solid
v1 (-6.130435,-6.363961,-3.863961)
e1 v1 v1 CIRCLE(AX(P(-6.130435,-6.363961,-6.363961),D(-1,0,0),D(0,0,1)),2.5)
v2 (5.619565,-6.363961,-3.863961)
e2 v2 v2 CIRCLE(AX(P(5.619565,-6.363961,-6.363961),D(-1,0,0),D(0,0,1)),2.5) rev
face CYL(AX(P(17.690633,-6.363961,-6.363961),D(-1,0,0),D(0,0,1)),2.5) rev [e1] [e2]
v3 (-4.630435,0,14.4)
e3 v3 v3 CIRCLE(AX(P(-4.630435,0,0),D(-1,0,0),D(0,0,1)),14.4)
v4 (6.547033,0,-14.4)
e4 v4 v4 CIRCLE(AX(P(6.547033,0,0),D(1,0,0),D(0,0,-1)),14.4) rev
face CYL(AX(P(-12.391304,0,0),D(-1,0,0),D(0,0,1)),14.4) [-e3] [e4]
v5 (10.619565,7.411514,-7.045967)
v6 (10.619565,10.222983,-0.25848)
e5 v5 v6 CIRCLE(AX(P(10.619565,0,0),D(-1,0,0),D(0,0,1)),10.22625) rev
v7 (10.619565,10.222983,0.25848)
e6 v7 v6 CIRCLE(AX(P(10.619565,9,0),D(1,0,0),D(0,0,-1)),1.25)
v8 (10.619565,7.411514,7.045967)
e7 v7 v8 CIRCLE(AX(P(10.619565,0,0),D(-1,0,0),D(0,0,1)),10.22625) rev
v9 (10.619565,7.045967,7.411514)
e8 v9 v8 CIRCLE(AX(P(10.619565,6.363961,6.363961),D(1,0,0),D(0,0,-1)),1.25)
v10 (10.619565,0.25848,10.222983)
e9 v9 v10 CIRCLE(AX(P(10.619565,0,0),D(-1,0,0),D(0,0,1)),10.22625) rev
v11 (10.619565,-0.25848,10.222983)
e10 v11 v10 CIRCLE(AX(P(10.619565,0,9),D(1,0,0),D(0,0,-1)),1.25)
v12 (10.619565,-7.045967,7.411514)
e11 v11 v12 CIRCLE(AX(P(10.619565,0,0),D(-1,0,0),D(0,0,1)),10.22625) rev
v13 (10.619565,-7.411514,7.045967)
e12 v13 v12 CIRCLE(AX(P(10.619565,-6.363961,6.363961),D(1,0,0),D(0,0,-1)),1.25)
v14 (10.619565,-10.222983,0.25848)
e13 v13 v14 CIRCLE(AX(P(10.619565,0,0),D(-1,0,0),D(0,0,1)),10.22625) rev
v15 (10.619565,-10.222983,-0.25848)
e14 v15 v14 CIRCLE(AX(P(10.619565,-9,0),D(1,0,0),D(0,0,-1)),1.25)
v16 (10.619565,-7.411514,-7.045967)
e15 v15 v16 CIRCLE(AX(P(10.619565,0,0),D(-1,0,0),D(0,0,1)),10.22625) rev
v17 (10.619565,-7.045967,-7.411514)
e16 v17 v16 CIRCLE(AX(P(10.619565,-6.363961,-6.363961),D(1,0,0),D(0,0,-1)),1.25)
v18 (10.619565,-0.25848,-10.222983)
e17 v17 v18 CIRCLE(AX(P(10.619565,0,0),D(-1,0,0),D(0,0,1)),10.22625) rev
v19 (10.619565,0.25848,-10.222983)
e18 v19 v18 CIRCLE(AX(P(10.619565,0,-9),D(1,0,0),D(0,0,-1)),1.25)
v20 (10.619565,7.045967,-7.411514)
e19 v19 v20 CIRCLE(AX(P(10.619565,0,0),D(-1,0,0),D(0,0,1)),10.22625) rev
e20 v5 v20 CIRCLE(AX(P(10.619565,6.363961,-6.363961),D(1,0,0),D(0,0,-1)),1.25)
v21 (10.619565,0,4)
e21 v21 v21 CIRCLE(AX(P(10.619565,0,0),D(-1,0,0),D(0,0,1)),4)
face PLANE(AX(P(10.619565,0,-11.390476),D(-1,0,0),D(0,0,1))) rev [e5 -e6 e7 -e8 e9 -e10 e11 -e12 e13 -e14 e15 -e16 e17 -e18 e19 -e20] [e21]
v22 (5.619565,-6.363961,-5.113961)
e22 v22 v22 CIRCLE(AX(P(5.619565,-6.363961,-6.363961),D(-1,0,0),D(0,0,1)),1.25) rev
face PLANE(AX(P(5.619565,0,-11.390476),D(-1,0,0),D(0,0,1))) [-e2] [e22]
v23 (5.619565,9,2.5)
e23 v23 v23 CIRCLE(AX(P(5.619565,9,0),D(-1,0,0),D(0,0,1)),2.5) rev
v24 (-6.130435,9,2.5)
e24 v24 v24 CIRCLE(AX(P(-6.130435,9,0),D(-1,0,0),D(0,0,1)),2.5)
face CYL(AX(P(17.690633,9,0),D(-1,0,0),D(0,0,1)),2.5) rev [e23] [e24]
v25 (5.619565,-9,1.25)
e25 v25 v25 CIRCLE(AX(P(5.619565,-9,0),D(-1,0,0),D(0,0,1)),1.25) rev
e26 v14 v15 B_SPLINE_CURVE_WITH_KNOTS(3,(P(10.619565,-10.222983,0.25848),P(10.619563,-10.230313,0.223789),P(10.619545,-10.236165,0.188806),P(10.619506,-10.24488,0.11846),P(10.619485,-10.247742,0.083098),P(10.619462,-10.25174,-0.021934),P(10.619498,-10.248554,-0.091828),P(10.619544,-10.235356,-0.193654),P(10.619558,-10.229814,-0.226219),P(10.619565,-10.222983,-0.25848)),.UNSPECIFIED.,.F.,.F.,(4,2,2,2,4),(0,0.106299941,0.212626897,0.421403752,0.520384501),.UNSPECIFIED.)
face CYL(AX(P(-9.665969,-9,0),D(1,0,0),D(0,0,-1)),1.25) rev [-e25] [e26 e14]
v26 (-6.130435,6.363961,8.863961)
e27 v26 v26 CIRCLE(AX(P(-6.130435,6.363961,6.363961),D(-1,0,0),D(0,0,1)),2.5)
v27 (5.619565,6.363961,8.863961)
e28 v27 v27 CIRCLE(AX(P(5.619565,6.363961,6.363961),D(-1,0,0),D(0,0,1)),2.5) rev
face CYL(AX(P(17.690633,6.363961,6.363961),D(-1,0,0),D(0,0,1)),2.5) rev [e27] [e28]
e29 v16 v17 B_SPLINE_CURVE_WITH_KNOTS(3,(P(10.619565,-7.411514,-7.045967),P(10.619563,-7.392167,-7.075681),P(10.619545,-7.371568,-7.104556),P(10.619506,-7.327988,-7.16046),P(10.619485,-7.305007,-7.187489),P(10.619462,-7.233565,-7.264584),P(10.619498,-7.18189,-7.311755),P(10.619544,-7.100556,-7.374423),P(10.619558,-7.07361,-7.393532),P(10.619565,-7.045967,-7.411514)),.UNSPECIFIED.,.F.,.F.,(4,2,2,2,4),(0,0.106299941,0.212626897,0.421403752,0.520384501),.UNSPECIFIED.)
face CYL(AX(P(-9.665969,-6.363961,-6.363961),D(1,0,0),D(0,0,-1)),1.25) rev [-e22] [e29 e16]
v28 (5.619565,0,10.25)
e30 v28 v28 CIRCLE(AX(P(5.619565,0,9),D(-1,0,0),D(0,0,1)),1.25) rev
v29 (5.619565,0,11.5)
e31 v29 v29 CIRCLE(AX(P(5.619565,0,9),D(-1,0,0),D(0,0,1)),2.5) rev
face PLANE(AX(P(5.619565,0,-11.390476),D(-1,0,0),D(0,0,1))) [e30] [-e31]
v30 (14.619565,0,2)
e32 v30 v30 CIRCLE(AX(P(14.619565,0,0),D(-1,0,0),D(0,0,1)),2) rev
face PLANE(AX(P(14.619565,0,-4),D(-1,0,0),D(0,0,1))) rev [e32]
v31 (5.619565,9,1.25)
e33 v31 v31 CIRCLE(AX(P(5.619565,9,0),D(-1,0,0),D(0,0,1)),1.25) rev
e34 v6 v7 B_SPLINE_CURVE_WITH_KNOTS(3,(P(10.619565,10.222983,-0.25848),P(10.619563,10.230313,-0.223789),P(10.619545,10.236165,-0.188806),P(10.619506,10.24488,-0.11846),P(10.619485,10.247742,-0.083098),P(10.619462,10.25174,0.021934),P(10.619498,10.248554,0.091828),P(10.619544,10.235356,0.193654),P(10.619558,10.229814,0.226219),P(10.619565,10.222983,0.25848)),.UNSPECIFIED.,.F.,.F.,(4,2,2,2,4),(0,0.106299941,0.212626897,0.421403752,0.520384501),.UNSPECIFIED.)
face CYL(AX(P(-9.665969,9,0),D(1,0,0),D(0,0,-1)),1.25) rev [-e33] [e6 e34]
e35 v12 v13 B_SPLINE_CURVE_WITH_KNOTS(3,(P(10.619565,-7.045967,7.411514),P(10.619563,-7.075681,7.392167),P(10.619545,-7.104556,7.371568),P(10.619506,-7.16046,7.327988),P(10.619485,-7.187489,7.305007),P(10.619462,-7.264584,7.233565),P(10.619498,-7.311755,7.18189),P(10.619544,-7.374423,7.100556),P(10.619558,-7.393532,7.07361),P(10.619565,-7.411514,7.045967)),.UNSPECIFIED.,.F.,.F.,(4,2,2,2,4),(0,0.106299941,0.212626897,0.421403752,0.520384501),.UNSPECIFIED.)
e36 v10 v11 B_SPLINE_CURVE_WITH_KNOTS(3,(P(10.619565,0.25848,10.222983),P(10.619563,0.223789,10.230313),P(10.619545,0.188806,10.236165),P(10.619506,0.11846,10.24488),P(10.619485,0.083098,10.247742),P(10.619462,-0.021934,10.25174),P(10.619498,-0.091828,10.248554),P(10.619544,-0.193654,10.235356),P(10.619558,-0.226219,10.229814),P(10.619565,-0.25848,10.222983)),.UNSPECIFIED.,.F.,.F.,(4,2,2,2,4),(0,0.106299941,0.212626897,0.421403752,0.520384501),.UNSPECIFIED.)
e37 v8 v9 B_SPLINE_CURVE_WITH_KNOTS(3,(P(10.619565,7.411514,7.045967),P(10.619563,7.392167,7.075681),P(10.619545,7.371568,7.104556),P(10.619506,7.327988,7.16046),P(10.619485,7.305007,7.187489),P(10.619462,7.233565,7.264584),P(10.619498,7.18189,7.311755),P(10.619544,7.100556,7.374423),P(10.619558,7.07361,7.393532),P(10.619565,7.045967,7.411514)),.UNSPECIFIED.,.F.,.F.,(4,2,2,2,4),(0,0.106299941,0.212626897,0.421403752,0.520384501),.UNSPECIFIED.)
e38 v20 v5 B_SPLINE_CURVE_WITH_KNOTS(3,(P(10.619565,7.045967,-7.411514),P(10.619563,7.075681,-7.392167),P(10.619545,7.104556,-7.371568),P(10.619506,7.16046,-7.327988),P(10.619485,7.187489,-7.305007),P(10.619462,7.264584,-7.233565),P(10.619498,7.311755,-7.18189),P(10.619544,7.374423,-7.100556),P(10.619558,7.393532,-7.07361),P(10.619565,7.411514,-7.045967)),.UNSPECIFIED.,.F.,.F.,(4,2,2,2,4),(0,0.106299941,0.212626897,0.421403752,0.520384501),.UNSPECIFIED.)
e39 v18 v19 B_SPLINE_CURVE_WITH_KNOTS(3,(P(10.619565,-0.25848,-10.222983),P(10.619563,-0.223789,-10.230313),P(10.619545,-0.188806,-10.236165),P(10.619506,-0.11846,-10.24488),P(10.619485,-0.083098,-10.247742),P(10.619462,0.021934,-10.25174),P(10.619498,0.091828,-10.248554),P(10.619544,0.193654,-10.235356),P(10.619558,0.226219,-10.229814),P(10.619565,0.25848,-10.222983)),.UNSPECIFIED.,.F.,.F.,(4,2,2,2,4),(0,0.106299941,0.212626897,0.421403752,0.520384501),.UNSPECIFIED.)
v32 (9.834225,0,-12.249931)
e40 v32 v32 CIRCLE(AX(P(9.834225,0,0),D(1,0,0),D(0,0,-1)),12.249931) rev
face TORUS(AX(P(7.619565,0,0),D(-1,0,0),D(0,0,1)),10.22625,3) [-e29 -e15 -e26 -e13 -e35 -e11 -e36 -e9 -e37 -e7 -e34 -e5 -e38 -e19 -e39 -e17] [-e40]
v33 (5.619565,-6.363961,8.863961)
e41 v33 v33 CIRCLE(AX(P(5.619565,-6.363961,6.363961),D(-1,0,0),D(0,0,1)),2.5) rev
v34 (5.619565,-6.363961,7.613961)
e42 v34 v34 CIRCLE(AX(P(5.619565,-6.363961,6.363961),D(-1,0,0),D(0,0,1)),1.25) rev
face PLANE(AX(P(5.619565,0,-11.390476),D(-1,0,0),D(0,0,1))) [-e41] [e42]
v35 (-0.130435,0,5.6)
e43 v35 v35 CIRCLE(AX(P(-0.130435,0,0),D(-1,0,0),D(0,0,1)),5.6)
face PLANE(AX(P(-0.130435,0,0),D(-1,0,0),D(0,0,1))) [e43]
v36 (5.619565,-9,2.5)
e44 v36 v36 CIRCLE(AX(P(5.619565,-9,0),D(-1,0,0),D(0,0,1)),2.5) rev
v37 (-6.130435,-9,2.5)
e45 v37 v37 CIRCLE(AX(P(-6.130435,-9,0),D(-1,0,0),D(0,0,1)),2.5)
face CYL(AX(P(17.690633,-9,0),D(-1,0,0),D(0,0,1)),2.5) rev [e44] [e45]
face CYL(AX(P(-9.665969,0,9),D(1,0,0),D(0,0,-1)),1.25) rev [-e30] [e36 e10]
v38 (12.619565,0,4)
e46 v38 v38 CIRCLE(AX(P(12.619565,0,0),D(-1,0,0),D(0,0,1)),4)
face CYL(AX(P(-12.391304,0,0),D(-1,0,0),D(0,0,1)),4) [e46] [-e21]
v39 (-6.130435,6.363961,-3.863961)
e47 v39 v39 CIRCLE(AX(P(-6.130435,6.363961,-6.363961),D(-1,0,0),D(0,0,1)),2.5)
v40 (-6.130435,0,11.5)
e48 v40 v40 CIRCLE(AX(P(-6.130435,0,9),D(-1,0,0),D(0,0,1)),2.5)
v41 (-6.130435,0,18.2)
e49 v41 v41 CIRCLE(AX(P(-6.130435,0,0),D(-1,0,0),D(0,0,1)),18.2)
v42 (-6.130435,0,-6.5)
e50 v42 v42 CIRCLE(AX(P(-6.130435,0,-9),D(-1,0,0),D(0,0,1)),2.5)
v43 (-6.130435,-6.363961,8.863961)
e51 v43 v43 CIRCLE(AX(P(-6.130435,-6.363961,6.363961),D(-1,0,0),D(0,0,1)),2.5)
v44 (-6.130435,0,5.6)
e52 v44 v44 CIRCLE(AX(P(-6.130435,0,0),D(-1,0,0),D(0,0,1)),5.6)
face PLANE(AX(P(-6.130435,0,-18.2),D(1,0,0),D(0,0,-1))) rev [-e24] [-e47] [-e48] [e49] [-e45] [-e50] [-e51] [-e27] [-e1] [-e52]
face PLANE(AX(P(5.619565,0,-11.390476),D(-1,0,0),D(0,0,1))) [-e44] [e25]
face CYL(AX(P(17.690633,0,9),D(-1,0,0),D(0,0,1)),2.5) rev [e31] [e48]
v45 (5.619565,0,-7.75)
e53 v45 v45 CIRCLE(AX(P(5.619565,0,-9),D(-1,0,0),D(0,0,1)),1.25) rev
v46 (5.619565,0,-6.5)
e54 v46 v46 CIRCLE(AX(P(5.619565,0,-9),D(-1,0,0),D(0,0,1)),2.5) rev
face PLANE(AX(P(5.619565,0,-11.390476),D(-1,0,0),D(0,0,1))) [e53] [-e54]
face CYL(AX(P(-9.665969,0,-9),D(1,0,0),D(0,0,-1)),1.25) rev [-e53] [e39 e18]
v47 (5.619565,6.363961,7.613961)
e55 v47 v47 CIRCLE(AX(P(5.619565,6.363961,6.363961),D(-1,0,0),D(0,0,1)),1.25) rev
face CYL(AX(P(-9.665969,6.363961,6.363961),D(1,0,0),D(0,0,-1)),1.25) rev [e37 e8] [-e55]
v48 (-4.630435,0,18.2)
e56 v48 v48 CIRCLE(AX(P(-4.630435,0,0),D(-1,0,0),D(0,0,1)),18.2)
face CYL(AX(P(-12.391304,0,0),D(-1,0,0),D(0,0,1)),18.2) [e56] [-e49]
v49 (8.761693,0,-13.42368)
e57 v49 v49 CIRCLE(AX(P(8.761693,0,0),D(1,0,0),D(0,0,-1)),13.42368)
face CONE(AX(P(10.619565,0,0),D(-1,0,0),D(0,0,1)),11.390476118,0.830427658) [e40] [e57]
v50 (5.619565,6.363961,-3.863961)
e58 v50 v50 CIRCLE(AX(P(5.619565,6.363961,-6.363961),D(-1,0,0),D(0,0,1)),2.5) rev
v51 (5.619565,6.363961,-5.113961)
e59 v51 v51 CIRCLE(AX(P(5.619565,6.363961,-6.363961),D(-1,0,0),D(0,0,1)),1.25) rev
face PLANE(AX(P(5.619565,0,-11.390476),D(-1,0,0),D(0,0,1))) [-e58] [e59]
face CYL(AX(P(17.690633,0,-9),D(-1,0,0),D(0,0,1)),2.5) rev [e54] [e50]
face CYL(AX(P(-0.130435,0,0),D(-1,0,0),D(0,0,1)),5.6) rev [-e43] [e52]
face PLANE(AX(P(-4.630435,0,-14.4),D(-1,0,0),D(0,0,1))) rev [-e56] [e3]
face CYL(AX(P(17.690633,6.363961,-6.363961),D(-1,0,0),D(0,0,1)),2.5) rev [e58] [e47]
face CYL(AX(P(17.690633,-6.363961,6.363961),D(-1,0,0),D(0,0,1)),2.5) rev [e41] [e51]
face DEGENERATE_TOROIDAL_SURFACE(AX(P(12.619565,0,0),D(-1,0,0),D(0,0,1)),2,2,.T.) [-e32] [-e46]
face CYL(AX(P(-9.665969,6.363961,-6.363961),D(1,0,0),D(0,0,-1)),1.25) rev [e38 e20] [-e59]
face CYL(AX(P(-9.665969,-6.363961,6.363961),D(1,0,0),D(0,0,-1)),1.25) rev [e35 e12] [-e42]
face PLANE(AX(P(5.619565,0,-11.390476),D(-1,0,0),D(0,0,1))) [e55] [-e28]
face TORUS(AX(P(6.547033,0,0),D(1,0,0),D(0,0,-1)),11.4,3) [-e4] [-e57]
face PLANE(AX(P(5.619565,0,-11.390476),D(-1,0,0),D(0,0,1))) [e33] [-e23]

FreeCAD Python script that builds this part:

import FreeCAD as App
import Part
import Sketcher

V = App.Vector
Q = App.Units.Quantity


def edges_at(feature, points):
    """Names of the edges that pass closest to the given points."""
    edges = feature.Shape.Edges
    near = lambda p: min(range(len(edges)), key=lambda i: edges[i].distToShape(Part.Vertex(*p))[0])
    return sorted({f"Edge{near(p) + 1}" for p in points})

doc = App.newDocument("Part")
body = doc.addObject("PartDesign::Body", "Body")

# Sketch on XZ plane
sketch1 = doc.addObject("Sketcher::SketchObject", "Sketch")
body.addObject(sketch1)
sketch1.AttachmentSupport = (doc.XZ_Plane, [""])
sketch1.MapMode = "FlatFace"
sketch1.addGeometry([
    Part.LineSegment(V(7.9, -14.4, 0), V(-4.6, -14.4, 0)),  # 0
    Part.LineSegment(V(-4.6, -14.4, 0), V(-4.6, -18.2, 0)),  # 1
    Part.LineSegment(V(-4.6, -18.2, 0), V(-6.1, -18.2, 0)),  # 2
    Part.LineSegment(V(-6.1, -18.2, 0), V(-6.1, 0, 0)),  # 3
    Part.LineSegment(V(-6.1, 0, 0), V(14.6, 0, 0)),  # 4
    Part.LineSegment(V(14.6, 0, 0), V(14.6, -4, 0)),  # 5
    Part.LineSegment(V(14.6, -4, 0), V(10.6, -4, 0)),  # 6
    Part.LineSegment(V(10.6, -4, 0), V(10.6, -11.4, 0)),  # 7
    Part.LineSegment(V(10.6, -11.4, 0), V(7.9, -14.4, 0)),  # 8
], False)
sketch1.addConstraint([
    Sketcher.Constraint("Coincident", 0, 2, 1, 1),
    Sketcher.Constraint("Coincident", 1, 2, 2, 1),
    Sketcher.Constraint("Coincident", 2, 2, 3, 1),
    Sketcher.Constraint("Coincident", 3, 2, 4, 1),
    Sketcher.Constraint("Coincident", 4, 2, 5, 1),
    Sketcher.Constraint("Coincident", 5, 2, 6, 1),
    Sketcher.Constraint("Coincident", 6, 2, 7, 1),
    Sketcher.Constraint("Coincident", 7, 2, 8, 1),
    Sketcher.Constraint("Coincident", 8, 2, 0, 1),
    Sketcher.Constraint("Horizontal", 0),
    Sketcher.Constraint("Vertical", 1),
    Sketcher.Constraint("Horizontal", 2),
    Sketcher.Constraint("Vertical", 3),
    Sketcher.Constraint("Horizontal", 4),
    Sketcher.Constraint("Vertical", 5),
    Sketcher.Constraint("Horizontal", 6),
    Sketcher.Constraint("Vertical", 7),
    Sketcher.Constraint("PointOnObject", 3, 2, -1),
    Sketcher.Constraint("Equal", 6, 5),
    Sketcher.Constraint("DistanceX", 6, 2, 6, 1, Q("4 mm")),
    Sketcher.Constraint("DistanceX", 0, 2, 0, 1, Q("12.5 mm")),
    Sketcher.Constraint("DistanceX", 2, 2, 2, 1, Q("1.5 mm")),
    Sketcher.Constraint("DistanceY", 1, 2, 1, 1, Q("3.8 mm")),
    Sketcher.Constraint("DistanceY", 3, 1, 3, 2, Q("18.2 mm")),
    Sketcher.Constraint("DistanceX", 4, 1, 4, 2, Q("20.75 mm")),
    Sketcher.Constraint("Angle", 8, Q("-132.42 deg")),
    Sketcher.Constraint("DistanceX", 0, 2, -1, 1, Q("4.630435 mm")),
])
revolution = doc.addObject("PartDesign::Revolution", "Revolution")
body.addObject(revolution)
revolution.Profile = sketch1
revolution.ReferenceAxis = (sketch1, ["H_Axis"])
revolution.Angle = 360
doc.recompute()

fillet = doc.addObject("PartDesign::Fillet", "Fillet")
body.addObject(fillet)
fillet.Base = (revolution, edges_at(revolution, [(14.62, 0, 4)]))
fillet.Radius = 2

# Sketch on YZ plane
sketch2 = doc.addObject("Sketcher::SketchObject", "Sketch001")
body.addObject(sketch2)
sketch2.AttachmentSupport = (doc.YZ_Plane, [""])
sketch2.MapMode = "FlatFace"
sketch2.AttachmentOffset = App.Placement(V(0, 0, -6.130435), App.Rotation())
sketch2.addGeometry(Part.Circle(V(0, 0, 0), V(0, 0, 1), 6), False)
sketch2.addConstraint([
    Sketcher.Constraint("Coincident", 0, 3, -1, 1),
    Sketcher.Constraint("Diameter", 0, Q("11.2 mm")),
])
pocket1 = doc.addObject("PartDesign::Pocket", "Pocket")
body.addObject(pocket1)
pocket1.Profile = sketch2
pocket1.Length = 6
pocket1.Reversed = True

# Sketch on YZ plane
sketch3 = doc.addObject("Sketcher::SketchObject", "Sketch002")
body.addObject(sketch3)
sketch3.AttachmentSupport = (doc.YZ_Plane, [""])
sketch3.MapMode = "FlatFace"
sketch3.AttachmentOffset = App.Placement(V(0, 0, 10.619565), App.Rotation())
sketch3.addGeometry([
    Part.Circle(V(9, 0, 0), V(0, 0, 1), 1.2),  # 0
    Part.Circle(V(6.4, -6.4, 0), V(0, 0, 1), 1.2),  # 1
    Part.Circle(V(0, -9, 0), V(0, 0, 1), 1.2),  # 2
    Part.Circle(V(-6.4, -6.4, 0), V(0, 0, 1), 1.2),  # 3
    Part.Circle(V(-9, 0, 0), V(0, 0, 1), 1.2),  # 4
    Part.Circle(V(-6.4, 6.4, 0), V(0, 0, 1), 1.2),  # 5
    Part.Circle(V(0, 9, 0), V(0, 0, 1), 1.2),  # 6
    Part.Circle(V(6.4, 6.4, 0), V(0, 0, 1), 1.2),  # 7
], False)
sketch3.addConstraint([
    Sketcher.Constraint("Equal", 0, 1),
    Sketcher.Constraint("Equal", 1, 2),
    Sketcher.Constraint("Equal", 2, 3),
    Sketcher.Constraint("Equal", 3, 4),
    Sketcher.Constraint("Equal", 4, 5),
    Sketcher.Constraint("Equal", 5, 6),
    Sketcher.Constraint("Equal", 6, 7),
    Sketcher.Constraint("Symmetric", 0, 3, 4, 3, -1, 1),
    Sketcher.Constraint("Symmetric", 1, 3, 5, 3, -1, 1),
    Sketcher.Constraint("Symmetric", 2, 3, 6, 3, -1, 1),
    Sketcher.Constraint("Symmetric", 3, 3, 7, 3, -1, 1),
    Sketcher.Constraint("Symmetric", 1, 3, 3, 3, -2),
    Sketcher.Constraint("PointOnObject", 0, 3, -1),
    Sketcher.Constraint("PointOnObject", 2, 3, -2),
    Sketcher.Constraint("Diameter", 0, Q("2.5 mm")),
    Sketcher.Constraint("DistanceX", -1, 1, 0, 3, Q("9 mm")),
    Sketcher.Constraint("DistanceY", 2, 3, -1, 1, Q("9 mm")),
    Sketcher.Constraint("DistanceX", -1, 1, 1, 3, Q("6.363961 mm")),
    Sketcher.Constraint("DistanceY", 1, 3, -1, 1, Q("6.363961 mm")),
])
pocket2 = doc.addObject("PartDesign::Pocket", "Pocket001")
body.addObject(pocket2)
pocket2.Profile = sketch3
pocket2.Length = 16.75

# Sketch on YZ plane
sketch4 = doc.addObject("Sketcher::SketchObject", "Sketch003")
body.addObject(sketch4)
sketch4.AttachmentSupport = (doc.YZ_Plane, [""])
sketch4.MapMode = "FlatFace"
sketch4.AttachmentOffset = App.Placement(V(0, 0, -6.130435), App.Rotation())
sketch4.addGeometry([
    Part.Circle(V(9, 0, 0), V(0, 0, 1), 2.5),  # 0
    Part.Circle(V(6.4, 6.4, 0), V(0, 0, 1), 2.5),  # 1
    Part.Circle(V(0, 9, 0), V(0, 0, 1), 2.5),  # 2
    Part.Circle(V(-6.4, 6.4, 0), V(0, 0, 1), 2.5),  # 3
    Part.Circle(V(-9, 0, 0), V(0, 0, 1), 2.5),  # 4
    Part.Circle(V(-6.4, -6.4, 0), V(0, 0, 1), 2.5),  # 5
    Part.Circle(V(0, -9, 0), V(0, 0, 1), 2.5),  # 6
    Part.Circle(V(6.4, -6.4, 0), V(0, 0, 1), 2.5),  # 7
], False)
sketch4.addConstraint([
    Sketcher.Constraint("Equal", 0, 1),
    Sketcher.Constraint("Equal", 1, 2),
    Sketcher.Constraint("Equal", 2, 3),
    Sketcher.Constraint("Equal", 3, 4),
    Sketcher.Constraint("Equal", 4, 5),
    Sketcher.Constraint("Equal", 5, 6),
    Sketcher.Constraint("Equal", 6, 7),
    Sketcher.Constraint("Symmetric", 0, 3, 4, 3, -1, 1),
    Sketcher.Constraint("Symmetric", 1, 3, 5, 3, -1, 1),
    Sketcher.Constraint("Symmetric", 2, 3, 6, 3, -1, 1),
    Sketcher.Constraint("Symmetric", 3, 3, 7, 3, -1, 1),
    Sketcher.Constraint("Symmetric", 1, 3, 3, 3, -2),
    Sketcher.Constraint("PointOnObject", 0, 3, -1),
    Sketcher.Constraint("PointOnObject", 2, 3, -2),
    Sketcher.Constraint("Diameter", 0, Q("5 mm")),
    Sketcher.Constraint("DistanceX", -1, 1, 0, 3, Q("9 mm")),
    Sketcher.Constraint("DistanceY", -1, 1, 2, 3, Q("9 mm")),
    Sketcher.Constraint("DistanceX", -1, 1, 1, 3, Q("6.363961 mm")),
    Sketcher.Constraint("DistanceY", -1, 1, 1, 3, Q("6.363961 mm")),
])
pocket3 = doc.addObject("PartDesign::Pocket", "Pocket002")
body.addObject(pocket3)
pocket3.Profile = sketch4
pocket3.Length = 11.75
pocket3.Reversed = True
doc.recompute()

fillet2 = doc.addObject("PartDesign::Fillet", "Fillet001")
body.addObject(fillet2)
fillet2.Base = (pocket3, edges_at(pocket3, [(7.87, 0, 14.4), (10.62, 0, 11.39)]))
fillet2.Radius = 3

doc.recompute()
